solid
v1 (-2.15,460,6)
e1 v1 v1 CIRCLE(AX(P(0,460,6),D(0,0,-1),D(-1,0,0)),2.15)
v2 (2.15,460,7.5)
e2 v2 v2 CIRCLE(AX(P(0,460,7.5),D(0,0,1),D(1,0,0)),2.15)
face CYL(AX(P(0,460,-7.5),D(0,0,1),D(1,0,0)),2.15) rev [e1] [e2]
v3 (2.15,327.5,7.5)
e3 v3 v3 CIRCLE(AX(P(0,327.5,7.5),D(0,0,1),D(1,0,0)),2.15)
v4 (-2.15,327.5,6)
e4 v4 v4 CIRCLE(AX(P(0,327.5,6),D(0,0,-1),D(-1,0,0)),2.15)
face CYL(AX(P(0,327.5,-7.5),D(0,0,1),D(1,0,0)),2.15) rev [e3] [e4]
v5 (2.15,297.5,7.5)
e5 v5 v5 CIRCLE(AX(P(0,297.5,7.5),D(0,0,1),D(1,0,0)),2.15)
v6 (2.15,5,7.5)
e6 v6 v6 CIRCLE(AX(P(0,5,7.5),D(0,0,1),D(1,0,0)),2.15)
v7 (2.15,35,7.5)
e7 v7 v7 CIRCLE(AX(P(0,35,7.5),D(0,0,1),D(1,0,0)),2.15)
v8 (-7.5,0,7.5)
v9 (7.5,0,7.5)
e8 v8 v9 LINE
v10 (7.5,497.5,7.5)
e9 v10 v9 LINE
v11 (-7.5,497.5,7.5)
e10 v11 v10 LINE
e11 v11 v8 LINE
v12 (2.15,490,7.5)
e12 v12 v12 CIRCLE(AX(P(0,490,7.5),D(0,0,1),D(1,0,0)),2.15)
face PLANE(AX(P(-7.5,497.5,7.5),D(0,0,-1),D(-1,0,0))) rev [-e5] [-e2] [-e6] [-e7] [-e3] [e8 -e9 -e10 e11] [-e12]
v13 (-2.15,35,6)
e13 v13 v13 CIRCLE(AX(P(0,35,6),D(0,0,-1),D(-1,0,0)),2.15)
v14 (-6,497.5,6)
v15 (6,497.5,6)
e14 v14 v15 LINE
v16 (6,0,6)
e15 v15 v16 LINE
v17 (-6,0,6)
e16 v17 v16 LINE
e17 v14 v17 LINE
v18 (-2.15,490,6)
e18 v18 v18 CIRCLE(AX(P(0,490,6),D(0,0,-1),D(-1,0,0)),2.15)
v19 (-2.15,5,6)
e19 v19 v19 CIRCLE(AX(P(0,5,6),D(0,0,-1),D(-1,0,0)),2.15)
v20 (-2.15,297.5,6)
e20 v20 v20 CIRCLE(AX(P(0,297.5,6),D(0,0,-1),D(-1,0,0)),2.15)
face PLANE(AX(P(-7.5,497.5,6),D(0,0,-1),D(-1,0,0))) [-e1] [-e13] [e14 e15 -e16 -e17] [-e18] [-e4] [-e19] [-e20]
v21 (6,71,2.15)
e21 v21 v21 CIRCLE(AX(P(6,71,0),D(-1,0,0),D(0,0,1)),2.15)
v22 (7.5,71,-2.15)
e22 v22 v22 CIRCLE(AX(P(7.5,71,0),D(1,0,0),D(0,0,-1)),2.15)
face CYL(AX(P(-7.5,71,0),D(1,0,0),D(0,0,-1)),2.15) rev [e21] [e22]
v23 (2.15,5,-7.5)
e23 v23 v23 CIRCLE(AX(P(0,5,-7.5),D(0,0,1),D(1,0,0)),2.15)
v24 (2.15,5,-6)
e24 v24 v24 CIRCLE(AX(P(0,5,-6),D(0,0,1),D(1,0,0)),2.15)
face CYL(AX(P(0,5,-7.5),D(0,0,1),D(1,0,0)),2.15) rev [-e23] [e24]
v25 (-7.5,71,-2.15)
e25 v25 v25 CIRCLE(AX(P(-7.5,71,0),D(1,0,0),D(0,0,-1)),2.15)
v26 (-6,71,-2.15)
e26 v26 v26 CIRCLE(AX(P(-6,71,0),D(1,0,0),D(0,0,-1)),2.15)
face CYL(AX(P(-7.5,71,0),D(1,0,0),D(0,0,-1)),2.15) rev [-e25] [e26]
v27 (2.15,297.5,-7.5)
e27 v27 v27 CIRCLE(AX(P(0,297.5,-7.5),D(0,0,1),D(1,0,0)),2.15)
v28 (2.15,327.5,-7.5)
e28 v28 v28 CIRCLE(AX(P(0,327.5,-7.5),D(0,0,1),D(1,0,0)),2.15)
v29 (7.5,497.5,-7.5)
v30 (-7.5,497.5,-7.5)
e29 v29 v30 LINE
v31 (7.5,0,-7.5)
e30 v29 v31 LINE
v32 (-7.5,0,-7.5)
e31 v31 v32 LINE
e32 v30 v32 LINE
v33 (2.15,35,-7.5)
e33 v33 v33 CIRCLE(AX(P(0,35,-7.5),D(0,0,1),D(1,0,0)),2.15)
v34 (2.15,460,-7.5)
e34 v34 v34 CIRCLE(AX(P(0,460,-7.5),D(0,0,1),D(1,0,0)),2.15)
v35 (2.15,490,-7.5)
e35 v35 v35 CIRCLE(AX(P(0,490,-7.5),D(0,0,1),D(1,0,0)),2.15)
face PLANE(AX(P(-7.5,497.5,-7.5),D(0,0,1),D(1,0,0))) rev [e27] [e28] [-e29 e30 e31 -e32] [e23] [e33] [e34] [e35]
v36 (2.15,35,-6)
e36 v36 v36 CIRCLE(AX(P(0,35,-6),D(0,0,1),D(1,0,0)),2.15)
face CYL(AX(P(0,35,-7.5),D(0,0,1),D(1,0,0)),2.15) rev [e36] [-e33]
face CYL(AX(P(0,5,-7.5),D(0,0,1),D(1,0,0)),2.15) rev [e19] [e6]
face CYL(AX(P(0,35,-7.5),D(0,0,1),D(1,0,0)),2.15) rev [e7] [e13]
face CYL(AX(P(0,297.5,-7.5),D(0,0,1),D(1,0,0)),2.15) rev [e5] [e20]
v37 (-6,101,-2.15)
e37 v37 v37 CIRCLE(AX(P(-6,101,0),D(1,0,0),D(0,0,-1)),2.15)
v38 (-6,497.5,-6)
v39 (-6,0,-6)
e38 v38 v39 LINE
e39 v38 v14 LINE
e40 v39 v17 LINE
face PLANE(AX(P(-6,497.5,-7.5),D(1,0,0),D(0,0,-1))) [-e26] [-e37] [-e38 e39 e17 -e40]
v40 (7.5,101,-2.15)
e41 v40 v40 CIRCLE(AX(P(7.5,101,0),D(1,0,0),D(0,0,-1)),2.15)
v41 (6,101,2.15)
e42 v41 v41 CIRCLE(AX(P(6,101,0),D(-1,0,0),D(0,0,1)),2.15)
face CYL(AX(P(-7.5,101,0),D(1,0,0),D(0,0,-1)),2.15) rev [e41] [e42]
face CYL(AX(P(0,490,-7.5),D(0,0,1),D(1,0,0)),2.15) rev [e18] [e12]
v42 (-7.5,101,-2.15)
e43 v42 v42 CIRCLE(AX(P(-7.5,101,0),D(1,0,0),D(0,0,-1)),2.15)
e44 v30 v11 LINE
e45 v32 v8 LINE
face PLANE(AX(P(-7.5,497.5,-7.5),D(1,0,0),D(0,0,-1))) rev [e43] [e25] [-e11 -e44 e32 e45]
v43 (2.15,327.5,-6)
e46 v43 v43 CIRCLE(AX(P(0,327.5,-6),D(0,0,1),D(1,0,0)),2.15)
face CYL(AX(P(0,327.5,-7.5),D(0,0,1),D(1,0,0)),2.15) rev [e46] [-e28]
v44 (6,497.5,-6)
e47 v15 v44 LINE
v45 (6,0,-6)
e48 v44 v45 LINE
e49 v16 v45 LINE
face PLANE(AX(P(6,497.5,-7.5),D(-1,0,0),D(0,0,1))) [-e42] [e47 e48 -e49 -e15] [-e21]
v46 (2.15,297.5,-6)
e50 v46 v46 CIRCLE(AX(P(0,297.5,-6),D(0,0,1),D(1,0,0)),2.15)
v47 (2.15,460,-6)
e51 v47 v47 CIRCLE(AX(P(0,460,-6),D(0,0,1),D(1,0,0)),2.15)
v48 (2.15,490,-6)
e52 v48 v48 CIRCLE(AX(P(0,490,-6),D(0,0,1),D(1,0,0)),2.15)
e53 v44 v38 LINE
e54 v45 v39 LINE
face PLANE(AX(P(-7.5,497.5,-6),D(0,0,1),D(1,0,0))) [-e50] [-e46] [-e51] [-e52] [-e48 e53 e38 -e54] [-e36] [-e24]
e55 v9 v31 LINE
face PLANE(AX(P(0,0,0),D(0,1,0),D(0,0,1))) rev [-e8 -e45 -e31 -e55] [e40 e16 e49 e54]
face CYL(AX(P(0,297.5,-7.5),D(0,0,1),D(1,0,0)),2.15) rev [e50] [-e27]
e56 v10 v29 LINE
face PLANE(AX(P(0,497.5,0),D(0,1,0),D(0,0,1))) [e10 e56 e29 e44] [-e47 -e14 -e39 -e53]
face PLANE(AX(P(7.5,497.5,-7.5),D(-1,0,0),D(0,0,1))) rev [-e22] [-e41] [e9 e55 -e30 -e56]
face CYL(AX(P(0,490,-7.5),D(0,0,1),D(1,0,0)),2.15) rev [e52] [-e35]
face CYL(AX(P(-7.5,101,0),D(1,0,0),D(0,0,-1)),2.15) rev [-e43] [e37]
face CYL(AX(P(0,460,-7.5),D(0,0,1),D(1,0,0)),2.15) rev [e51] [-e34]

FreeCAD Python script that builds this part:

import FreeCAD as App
import Part
import Sketcher

V = App.Vector


def add_polygon(sketch, points):
    """Adds a closed chain of lines whose ends are joined by coincident constraints."""
    first, n = sketch.GeometryCount, len(points)
    for a, b in zip(points, points[1:] + points[:1]):
        sketch.addGeometry(Part.LineSegment(App.Vector(*a, 0), App.Vector(*b, 0)), False)
    for i in range(n):
        sketch.addConstraint(Sketcher.Constraint("Coincident", first + i, 2, first + (i + 1) % n, 1))

doc = App.newDocument("Part")
body = doc.addObject("PartDesign::Body", "Body")

# Sketch on XZ plane
sketch1 = doc.addObject("Sketcher::SketchObject", "Sketch")
body.addObject(sketch1)
sketch1.AttachmentSupport = (doc.XZ_Plane, [""])
sketch1.MapMode = "FlatFace"
add_polygon(sketch1, [(-7.5, -7.5), (-7.5, 7.5), (7.5, 7.5), (7.5, -7.5)])  # lines 0-3
add_polygon(sketch1, [(6, 6), (-6, 6), (-6, -6), (6, -6)])  # lines 4-7
sketch1.addConstraint(Sketcher.Constraint("Vertical", 0))
sketch1.addConstraint(Sketcher.Constraint("Horizontal", 1))
sketch1.addConstraint(Sketcher.Constraint("Vertical", 2))
sketch1.addConstraint(Sketcher.Constraint("Horizontal", 3))
sketch1.addConstraint(Sketcher.Constraint("Horizontal", 4))
sketch1.addConstraint(Sketcher.Constraint("Vertical", 5))
sketch1.addConstraint(Sketcher.Constraint("Horizontal", 6))
sketch1.addConstraint(Sketcher.Constraint("Vertical", 7))
sketch1.addConstraint(Sketcher.Constraint("Symmetric", 0, 2, 2, 2, -1, 1))
sketch1.addConstraint(Sketcher.Constraint("Symmetric", 4, 2, 6, 2, -1, 1))
sketch1.addConstraint(Sketcher.Constraint("Equal", 3, 0))
sketch1.addConstraint(Sketcher.Constraint("Equal", 6, 5))
sketch1.addConstraint(Sketcher.Constraint("DistanceX", 1, 1, 1, 2, 15.0))
sketch1.addConstraint(Sketcher.Constraint("DistanceX", 4, 2, 4, 1, 12.0))
pad1 = doc.addObject("PartDesign::Pad", "Pad")
body.addObject(pad1)
pad1.Profile = sketch1
pad1.Length = 497.5
pad1.Reversed = True

# Sketch on YZ plane
sketch2 = doc.addObject("Sketcher::SketchObject", "Sketch001")
body.addObject(sketch2)
sketch2.AttachmentSupport = (doc.YZ_Plane, [""])
sketch2.MapMode = "FlatFace"
sketch2.AttachmentOffset = App.Placement(V(0, 0, 7.5), App.Rotation())
sketch2.addGeometry(Part.Circle(V(71, 0, 0), V(0, 0, 1), 2.15), False)
sketch2.addGeometry(Part.Circle(V(101, 0, 0), V(0, 0, 1), 2.15), False)
sketch2.addConstraint(Sketcher.Constraint("Equal", 0, 1))
sketch2.addConstraint(Sketcher.Constraint("PointOnObject", 0, 3, -1))
sketch2.addConstraint(Sketcher.Constraint("PointOnObject", 1, 3, -1))
sketch2.addConstraint(Sketcher.Constraint("Diameter", 0, 4.3))
sketch2.addConstraint(Sketcher.Constraint("DistanceX", -1, 1, 0, 3, 71.0))
sketch2.addConstraint(Sketcher.Constraint("DistanceX", -1, 1, 1, 3, 101.0))
pocket1 = doc.addObject("PartDesign::Pocket", "Pocket")
body.addObject(pocket1)
pocket1.Profile = sketch2
pocket1.Type = "ThroughAll"

# Sketch on XY plane
sketch3 = doc.addObject("Sketcher::SketchObject", "Sketch002")
body.addObject(sketch3)
sketch3.AttachmentSupport = (doc.XY_Plane, [""])
sketch3.MapMode = "FlatFace"
sketch3.AttachmentOffset = App.Placement(V(0, 0, 7.5), App.Rotation())
sketch3.addGeometry(Part.Circle(V(0, 35, 0), V(0, 0, 1), 2.15), False)
sketch3.addGeometry(Part.Circle(V(0, 5, 0), V(0, 0, 1), 2.15), False)
sketch3.addGeometry(Part.Circle(V(0, 297.5, 0), V(0, 0, 1), 2.15), False)
sketch3.addGeometry(Part.Circle(V(0, 327.5, 0), V(0, 0, 1), 2.15), False)
sketch3.addGeometry(Part.Circle(V(0, 490, 0), V(0, 0, 1), 2.15), False)
sketch3.addGeometry(Part.Circle(V(0, 460, 0), V(0, 0, 1), 2.15), False)
sketch3.addConstraint(Sketcher.Constraint("Equal", 0, 1))
sketch3.addConstraint(Sketcher.Constraint("Equal", 1, 2))
sketch3.addConstraint(Sketcher.Constraint("Equal", 2, 3))
sketch3.addConstraint(Sketcher.Constraint("Equal", 3, 4))
sketch3.addConstraint(Sketcher.Constraint("Equal", 4, 5))
sketch3.addConstraint(Sketcher.Constraint("PointOnObject", 0, 3, -2))
sketch3.addConstraint(Sketcher.Constraint("PointOnObject", 1, 3, -2))
sketch3.addConstraint(Sketcher.Constraint("PointOnObject", 2, 3, -2))
sketch3.addConstraint(Sketcher.Constraint("PointOnObject", 3, 3, -2))
sketch3.addConstraint(Sketcher.Constraint("PointOnObject", 4, 3, -2))
sketch3.addConstraint(Sketcher.Constraint("PointOnObject", 5, 3, -2))
sketch3.addConstraint(Sketcher.Constraint("Diameter", 0, 4.3))
sketch3.addConstraint(Sketcher.Constraint("DistanceY", -1, 1, 0, 3, 35.0))
sketch3.addConstraint(Sketcher.Constraint("DistanceY", -1, 1, 1, 3, 5.0))
sketch3.addConstraint(Sketcher.Constraint("DistanceY", -1, 1, 4, 3, 490.0))
sketch3.addConstraint(Sketcher.Constraint("DistanceY", -1, 1, 5, 3, 460.0))
sketch3.addConstraint(Sketcher.Constraint("DistanceY", 2, 3, 3, 3, 30.0))
sketch3.addConstraint(Sketcher.Constraint("DistanceY", -1, 1, 2, 3, 297.5))
pocket2 = doc.addObject("PartDesign::Pocket", "Pocket001")
body.addObject(pocket2)
pocket2.Profile = sketch3
pocket2.Type = "ThroughAll"

doc.recompute()
